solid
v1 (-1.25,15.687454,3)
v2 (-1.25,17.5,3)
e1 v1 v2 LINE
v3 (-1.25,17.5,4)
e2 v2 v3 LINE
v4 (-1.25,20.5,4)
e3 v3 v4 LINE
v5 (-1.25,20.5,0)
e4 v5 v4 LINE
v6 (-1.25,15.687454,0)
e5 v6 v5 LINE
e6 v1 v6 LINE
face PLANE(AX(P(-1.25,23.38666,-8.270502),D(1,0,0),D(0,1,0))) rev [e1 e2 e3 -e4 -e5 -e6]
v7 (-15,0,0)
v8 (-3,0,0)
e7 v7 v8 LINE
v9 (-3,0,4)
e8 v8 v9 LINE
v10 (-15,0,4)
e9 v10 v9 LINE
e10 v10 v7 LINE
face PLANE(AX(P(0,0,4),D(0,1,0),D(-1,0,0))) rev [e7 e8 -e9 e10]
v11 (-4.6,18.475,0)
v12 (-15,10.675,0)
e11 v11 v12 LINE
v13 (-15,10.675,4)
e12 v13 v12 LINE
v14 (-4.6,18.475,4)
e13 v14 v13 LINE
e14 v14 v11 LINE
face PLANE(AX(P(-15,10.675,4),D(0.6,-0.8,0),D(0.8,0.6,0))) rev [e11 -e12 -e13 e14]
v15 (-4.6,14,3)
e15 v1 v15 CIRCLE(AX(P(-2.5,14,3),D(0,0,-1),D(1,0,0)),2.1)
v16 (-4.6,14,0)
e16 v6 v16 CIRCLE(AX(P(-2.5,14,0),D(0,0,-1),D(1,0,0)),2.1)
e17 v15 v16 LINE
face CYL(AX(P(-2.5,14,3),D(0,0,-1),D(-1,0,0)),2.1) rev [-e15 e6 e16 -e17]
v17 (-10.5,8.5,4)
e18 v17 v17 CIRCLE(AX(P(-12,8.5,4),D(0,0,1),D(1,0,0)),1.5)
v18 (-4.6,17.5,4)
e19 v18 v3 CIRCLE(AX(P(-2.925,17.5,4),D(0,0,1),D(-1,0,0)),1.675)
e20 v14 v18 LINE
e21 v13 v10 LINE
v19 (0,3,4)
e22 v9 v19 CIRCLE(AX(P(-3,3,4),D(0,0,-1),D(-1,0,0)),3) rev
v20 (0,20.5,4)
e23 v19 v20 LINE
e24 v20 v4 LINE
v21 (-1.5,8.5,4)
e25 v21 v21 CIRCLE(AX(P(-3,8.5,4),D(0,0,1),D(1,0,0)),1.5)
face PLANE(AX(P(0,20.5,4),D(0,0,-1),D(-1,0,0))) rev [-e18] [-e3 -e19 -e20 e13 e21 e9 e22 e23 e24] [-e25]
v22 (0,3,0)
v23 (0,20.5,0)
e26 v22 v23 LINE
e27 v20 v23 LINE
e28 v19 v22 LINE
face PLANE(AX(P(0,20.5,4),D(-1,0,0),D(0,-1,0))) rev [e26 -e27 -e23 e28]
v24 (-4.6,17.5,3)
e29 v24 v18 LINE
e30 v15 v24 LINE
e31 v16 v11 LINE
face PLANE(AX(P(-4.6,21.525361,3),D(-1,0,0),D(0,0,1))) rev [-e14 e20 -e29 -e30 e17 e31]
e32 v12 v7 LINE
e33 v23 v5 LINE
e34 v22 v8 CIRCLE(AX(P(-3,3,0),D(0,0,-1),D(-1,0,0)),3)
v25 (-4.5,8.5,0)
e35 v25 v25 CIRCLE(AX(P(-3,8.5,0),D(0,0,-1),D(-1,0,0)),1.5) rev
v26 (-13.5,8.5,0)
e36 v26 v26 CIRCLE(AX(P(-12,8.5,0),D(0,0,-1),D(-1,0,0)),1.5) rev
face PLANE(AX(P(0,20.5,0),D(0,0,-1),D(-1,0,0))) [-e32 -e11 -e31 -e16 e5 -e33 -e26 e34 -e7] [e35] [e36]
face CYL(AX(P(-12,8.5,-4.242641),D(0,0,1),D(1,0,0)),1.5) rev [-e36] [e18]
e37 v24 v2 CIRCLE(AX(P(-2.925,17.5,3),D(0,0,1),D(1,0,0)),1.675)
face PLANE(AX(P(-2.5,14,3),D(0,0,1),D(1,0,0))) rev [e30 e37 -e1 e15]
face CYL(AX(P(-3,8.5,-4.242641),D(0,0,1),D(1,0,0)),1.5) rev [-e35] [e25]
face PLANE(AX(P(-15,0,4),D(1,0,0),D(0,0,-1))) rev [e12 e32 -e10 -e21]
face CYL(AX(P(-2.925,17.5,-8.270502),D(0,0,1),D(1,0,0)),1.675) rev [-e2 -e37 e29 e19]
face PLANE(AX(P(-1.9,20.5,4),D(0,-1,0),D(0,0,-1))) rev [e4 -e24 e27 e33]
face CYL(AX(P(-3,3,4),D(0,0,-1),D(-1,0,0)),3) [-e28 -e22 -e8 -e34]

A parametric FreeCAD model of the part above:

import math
import FreeCAD as App
import Part
import Sketcher
from FreeCAD import Vector
Q = App.Units.Quantity


def edges_at(feature, points):
    """Names of the edges that pass closest to the given points."""
    edges = feature.Shape.Edges
    near = lambda p: min(range(len(edges)), key=lambda i: edges[i].distToShape(Part.Vertex(*p))[0])
    return sorted({f"Edge{near(p) + 1}" for p in points})

doc = App.newDocument("Part")
params = doc.addObject("Spreadsheet::Sheet", "Params")
for row, (alias, value) in enumerate([
    ("sketch1_width", "15 mm"),
    ("sketch1_width2", "1.9 mm"),
    ("sketch1_height", "20.5 mm"),
    ("pad1_length", "4 mm"),
    ("sketch2_radius", "2.1 mm"),
    ("pocket1_length", "3 mm"),
    ("sketch3_diameter", "3 mm"),
    ("pocket2_length", "4 mm"),
    ("fillet_radius", "3 mm"),
    ("pocket3_length", "4 mm"),
    ("sketch5_radius", "2.1 mm"),
    ("sketch5_height", "6.5 mm"),
    ("sketch5_width", "0.85 mm"),
    ("pad2_length", "3 mm"),
], start=1):
    params.set(f"A{row}", alias)
    params.set(f"B{row}", "=" + value)
    params.setAlias(f"B{row}", alias)

body = doc.addObject("PartDesign::Body", "Body")

sketch1 = doc.addObject("Sketcher::SketchObject", "Sketch")
body.addObject(sketch1)
sketch1.AttachmentSupport = (doc.XY_Plane, [""])
sketch1.MapMode = "FlatFace"
sketch1.addGeometry([
    Part.LineSegment(Vector(0, 0, 0), Vector(0, 20.5, 0)),
    Part.LineSegment(Vector(0, 20.5, 0), Vector(-1.9, 20.5, 0)),
    Part.LineSegment(Vector(-1.9, 20.5, 0), Vector(-15, 10.7, 0)),
    Part.LineSegment(Vector(-15, 10.7, 0), Vector(-15, 0, 0)),
    Part.LineSegment(Vector(-15, 0, 0), Vector(0, 0, 0)),
], False)
sketch1.addConstraint([
    Sketcher.Constraint("Coincident", 0, 2, 1, 1),
    Sketcher.Constraint("Coincident", 1, 2, 2, 1),
    Sketcher.Constraint("Coincident", 2, 2, 3, 1),
    Sketcher.Constraint("Coincident", 3, 2, 4, 1),
    Sketcher.Constraint("Coincident", 4, 2, 0, 1),
    Sketcher.Constraint("Vertical", 0),
    Sketcher.Constraint("Horizontal", 1),
    Sketcher.Constraint("Vertical", 3),
    Sketcher.Constraint("Horizontal", 4),
    Sketcher.Constraint("Coincident", 4, 2, -1, 1),
    Sketcher.Constraint("DistanceX", 4, 1, 4, 2, Q("15 mm")),
    Sketcher.Constraint("DistanceX", 1, 2, 1, 1, Q("1.9 mm")),
    Sketcher.Constraint("DistanceY", 0, 1, 0, 2, Q("20.5 mm")),
    Sketcher.Constraint("DistanceY", 3, 2, 3, 1, Q("10.675 mm")),
])
sketch1.setExpression("Constraints[10]", "Params.sketch1_width")
sketch1.setExpression("Constraints[11]", "Params.sketch1_width2")
sketch1.setExpression("Constraints[12]", "Params.sketch1_height")
pad1 = doc.addObject("PartDesign::Pad", "Pad")
body.addObject(pad1)
pad1.Profile = sketch1
pad1.setExpression("Length", "Params.pad1_length")

sketch2 = doc.addObject("Sketcher::SketchObject", "Sketch001")
body.addObject(sketch2)
sketch2.AttachmentSupport = (doc.XY_Plane, [""])
sketch2.MapMode = "FlatFace"
sketch2.addGeometry([
    Part.LineSegment(Vector(-0.4, 21.5, 0), Vector(-0.4, 14, 0)),
    Part.ArcOfCircle(Part.Circle(Vector(-2.5, 14, 0), Vector(0, 0, 1), 2.1), math.radians(180), math.radians(360)),
    Part.LineSegment(Vector(-4.6, 14, 0), Vector(-4.6, 21.5, 0)),
    Part.LineSegment(Vector(-4.6, 21.5, 0), Vector(-0.4, 21.5, 0)),
], False)
sketch2.addConstraint([
    Sketcher.Constraint("Tangent", 0, 2, 1, 2),
    Sketcher.Constraint("Tangent", 1, 1, 2, 1),
    Sketcher.Constraint("Coincident", 2, 2, 3, 1),
    Sketcher.Constraint("Coincident", 3, 2, 0, 1),
    Sketcher.Constraint("Vertical", 0),
    Sketcher.Constraint("Vertical", 2),
    Sketcher.Constraint("Horizontal", 3),
    Sketcher.Constraint("Radius", 1, Q("2.1 mm")),
    Sketcher.Constraint("DistanceY", -1, 1, 1, 3, Q("14 mm")),
    Sketcher.Constraint("DistanceX", 1, 3, -1, 1, Q("2.5 mm")),
    Sketcher.Constraint("DistanceY", 0, 2, 0, 1, Q("7.525361 mm")),
])
sketch2.setExpression("Constraints[7]", "Params.sketch2_radius")
pocket1 = doc.addObject("PartDesign::Pocket", "Pocket")
body.addObject(pocket1)
pocket1.Profile = sketch2
pocket1.setExpression("Length", "Params.pocket1_length")
pocket1.Reversed = True

sketch3 = doc.addObject("Sketcher::SketchObject", "Sketch002")
body.addObject(sketch3)
sketch3.AttachmentSupport = (doc.XY_Plane, [""])
sketch3.MapMode = "FlatFace"
sketch3.AttachmentOffset = App.Placement(Vector(0, 0, 4), App.Rotation())
sketch3.addGeometry([
    Part.Circle(Vector(-3, 8.5, 0), Vector(0, 0, 1), 1.5),
    Part.Circle(Vector(-12, 8.5, 0), Vector(0, 0, 1), 1.5),
], False)
sketch3.addConstraint([
    Sketcher.Constraint("Equal", 0, 1),
    Sketcher.Constraint("Horizontal", 0, 3, 1, 3),
    Sketcher.Constraint("Diameter", 0, Q("3 mm")),
    Sketcher.Constraint("DistanceX", 0, 3, -1, 1, Q("3 mm")),
    Sketcher.Constraint("DistanceX", 1, 3, -1, 1, Q("12 mm")),
    Sketcher.Constraint("DistanceY", -1, 1, 0, 3, Q("8.5 mm")),
])
sketch3.setExpression("Constraints[2]", "Params.sketch3_diameter")
pocket2 = doc.addObject("PartDesign::Pocket", "Pocket001")
body.addObject(pocket2)
pocket2.Profile = sketch3
pocket2.setExpression("Length", "Params.pocket2_length")
doc.recompute()

fillet = doc.addObject("PartDesign::Fillet", "Fillet")
body.addObject(fillet)
fillet.Base = (pocket2, edges_at(pocket2, [(0, 0, 2)]))
fillet.setExpression("Radius", "Params.fillet_radius")

sketch4 = doc.addObject("Sketcher::SketchObject", "Sketch003")
body.addObject(sketch4)
sketch4.AttachmentSupport = (doc.XY_Plane, [""])
sketch4.MapMode = "FlatFace"
sketch4.AttachmentOffset = App.Placement(Vector(0, 0, 4), App.Rotation())
sketch4.addGeometry([
    Part.LineSegment(Vector(-1.2, 17.5, 0), Vector(-1.2, 23.4, 0)),
    Part.LineSegment(Vector(-1.2, 23.4, 0), Vector(-4.6, 23.4, 0)),
    Part.LineSegment(Vector(-4.6, 23.4, 0), Vector(-4.6, 17.5, 0)),
    Part.ArcOfCircle(Part.Circle(Vector(-2.9, 17.5, 0), Vector(0, 0, 1), 1.7), math.radians(180), math.radians(360)),
], False)
sketch4.addConstraint([
    Sketcher.Constraint("Coincident", 0, 2, 1, 1),
    Sketcher.Constraint("Coincident", 1, 2, 2, 1),
    Sketcher.Constraint("Tangent", 2, 2, 3, 1),
    Sketcher.Constraint("Tangent", 3, 2, 0, 1),
    Sketcher.Constraint("Vertical", 0),
    Sketcher.Constraint("Horizontal", 1),
    Sketcher.Constraint("Vertical", 2),
    Sketcher.Constraint("Radius", 3, Q("1.675 mm")),
    Sketcher.Constraint("DistanceY", -1, 1, 3, 3, Q("17.5 mm")),
    Sketcher.Constraint("DistanceX", 1, 2, -1, 1, Q("4.6 mm")),
    Sketcher.Constraint("DistanceY", 0, 1, 0, 2, Q("5.88666 mm")),
])
pocket3 = doc.addObject("PartDesign::Pocket", "Pocket002")
body.addObject(pocket3)
pocket3.Profile = sketch4
pocket3.setExpression("Length", "Params.pocket3_length")

sketch5 = doc.addObject("Sketcher::SketchObject", "Sketch004")
body.addObject(sketch5)
sketch5.AttachmentSupport = (doc.XY_Plane, [""])
sketch5.MapMode = "FlatFace"
sketch5.addGeometry([
    Part.LineSegment(Vector(-1.2, 20.5, 0), Vector(-0.4, 20.5, 0)),
    Part.LineSegment(Vector(-0.4, 20.5, 0), Vector(-0.4, 14, 0)),
    Part.ArcOfCircle(Part.Circle(Vector(-2.5, 14, 0), Vector(0, 0, 1), 2.1), math.radians(0), math.radians(53)),
    Part.LineSegment(Vector(-1.2, 15.7, 0), Vector(-1.2, 20.5, 0)),
], False)
sketch5.addConstraint([
    Sketcher.Constraint("Coincident", 0, 2, 1, 1),
    Sketcher.Constraint("Tangent", 1, 2, 2, 1),
    Sketcher.Constraint("Coincident", 2, 2, 3, 1),
    Sketcher.Constraint("Coincident", 3, 2, 0, 1),
    Sketcher.Constraint("Horizontal", 0),
    Sketcher.Constraint("Vertical", 1),
    Sketcher.Constraint("Vertical", 3),
    Sketcher.Constraint("Radius", 2, Q("2.1 mm")),
    Sketcher.Constraint("DistanceY", 1, 2, 1, 1, Q("6.5 mm")),
    Sketcher.Constraint("DistanceY", -1, 1, 2, 3, Q("14 mm")),
    Sketcher.Constraint("DistanceX", 0, 1, 0, 2, Q("0.85 mm")),
    Sketcher.Constraint("DistanceX", 2, 3, -1, 1, Q("2.5 mm")),
])
sketch5.setExpression("Constraints[7]", "Params.sketch5_radius")
sketch5.setExpression("Constraints[8]", "Params.sketch5_height")
sketch5.setExpression("Constraints[10]", "Params.sketch5_width")
pad2 = doc.addObject("PartDesign::Pad", "Pad001")
body.addObject(pad2)
pad2.Profile = sketch5
pad2.setExpression("Length", "Params.pad2_length")

doc.recompute()
